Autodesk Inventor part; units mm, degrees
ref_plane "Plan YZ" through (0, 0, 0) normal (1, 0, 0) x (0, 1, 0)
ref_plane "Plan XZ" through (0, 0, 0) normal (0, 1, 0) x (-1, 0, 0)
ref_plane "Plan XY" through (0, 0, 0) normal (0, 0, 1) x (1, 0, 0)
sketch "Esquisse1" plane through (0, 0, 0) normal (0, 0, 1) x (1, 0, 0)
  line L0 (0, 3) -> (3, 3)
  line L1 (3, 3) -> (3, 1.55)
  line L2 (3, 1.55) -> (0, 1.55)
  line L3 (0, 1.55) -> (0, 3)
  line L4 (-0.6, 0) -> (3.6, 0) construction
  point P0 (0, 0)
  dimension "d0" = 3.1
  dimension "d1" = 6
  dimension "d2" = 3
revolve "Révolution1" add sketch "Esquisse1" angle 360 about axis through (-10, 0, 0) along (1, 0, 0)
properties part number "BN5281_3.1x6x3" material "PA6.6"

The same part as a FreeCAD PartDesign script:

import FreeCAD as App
import Part
import Sketcher
from FreeCAD import Vector


def add_polygon(sketch, points):
    """Adds a closed chain of lines whose ends are joined by coincident constraints."""
    first, n = sketch.GeometryCount, len(points)
    for a, b in zip(points, points[1:] + points[:1]):
        sketch.addGeometry(Part.LineSegment(App.Vector(*a, 0), App.Vector(*b, 0)), False)
    for i in range(n):
        sketch.addConstraint(Sketcher.Constraint("Coincident", first + i, 2, first + (i + 1) % n, 1))

doc = App.newDocument("Part")
body = doc.addObject("PartDesign::Body", "Body")

sketch1 = body.newObject("Sketcher::SketchObject", "Sketch")
sketch1.AttachmentSupport = (doc.getObject("XY_Plane"), [""])
sketch1.MapMode = "FlatFace"
add_polygon(sketch1, [(3, 3), (0, 3), (0, 1.6), (3, 1.6)])
sketch1.addConstraint([
    Sketcher.Constraint("Horizontal", 0),
    Sketcher.Constraint("Vertical", 1),
    Sketcher.Constraint("Horizontal", 2),
    Sketcher.Constraint("Vertical", 3),
    Sketcher.Constraint("PointOnObject", 0, 2, -2),
    Sketcher.Constraint("DistanceX", 0, 2, 0, 1, 3.0),
    Sketcher.Constraint("DistanceY", -1, 1, 0, 2, 3.0),
    Sketcher.Constraint("DistanceY", 1, 2, 1, 1, 1.45),
])
revolution = body.newObject("PartDesign::Revolution", "Revolution")
revolution.Profile = sketch1
revolution.ReferenceAxis = (sketch1, ["H_Axis"])
revolution.Angle = 360

doc.recompute()
